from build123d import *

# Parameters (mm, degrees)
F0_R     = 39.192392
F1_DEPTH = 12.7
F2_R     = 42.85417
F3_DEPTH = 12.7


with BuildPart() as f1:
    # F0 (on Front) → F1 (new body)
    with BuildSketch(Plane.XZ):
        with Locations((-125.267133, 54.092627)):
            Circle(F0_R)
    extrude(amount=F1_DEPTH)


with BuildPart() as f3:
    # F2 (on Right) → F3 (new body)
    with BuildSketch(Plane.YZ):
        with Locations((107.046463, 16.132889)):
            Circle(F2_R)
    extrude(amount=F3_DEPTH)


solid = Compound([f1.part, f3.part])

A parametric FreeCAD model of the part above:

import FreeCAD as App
import Part
import Sketcher
from FreeCAD import Vector
Q = App.Units.Quantity

doc = App.newDocument("Part")
body = doc.addObject("PartDesign::Body", "Body")

# Sketch on XZ plane
sketch1 = body.newObject("Sketcher::SketchObject", "Sketch")
sketch1.AttachmentSupport = (doc.getObject("XZ_Plane"), [""])
sketch1.MapMode = "FlatFace"
sketch1.addGeometry(Part.Circle(Vector(-125, 54, 0), Vector(0, 0, 1), 39), False)
sketch1.addConstraint([
    Sketcher.Constraint("Diameter", 0, Q("78.384784 mm")),
    Sketcher.Constraint("DistanceX", 0, 3, -1, 1, Q("125.267133 mm")),
    Sketcher.Constraint("DistanceY", -1, 1, 0, 3, Q("54.092627 mm")),
])
pad1 = body.newObject("PartDesign::Pad", "Pad")
pad1.Profile = sketch1
pad1.Length = Q("0.5 in")
body2 = doc.addObject("PartDesign::Body", "Body001")

# Sketch on YZ plane
sketch2 = body2.newObject("Sketcher::SketchObject", "Sketch001")
sketch2.AttachmentSupport = (doc.getObject("YZ_Plane001"), [""])
sketch2.MapMode = "FlatFace"
sketch2.addGeometry(Part.Circle(Vector(107, 16, 0), Vector(0, 0, 1), 43), False)
sketch2.addConstraint([
    Sketcher.Constraint("Diameter", 0, Q("85.70834 mm")),
    Sketcher.Constraint("DistanceY", -1, 1, 0, 3, Q("16.132889 mm")),
    Sketcher.Constraint("DistanceX", -1, 1, 0, 3, Q("107.046463 mm")),
])
pad2 = body2.newObject("PartDesign::Pad", "Pad001")
pad2.Profile = sketch2
pad2.Length = Q("0.5 in")

doc.recompute()
